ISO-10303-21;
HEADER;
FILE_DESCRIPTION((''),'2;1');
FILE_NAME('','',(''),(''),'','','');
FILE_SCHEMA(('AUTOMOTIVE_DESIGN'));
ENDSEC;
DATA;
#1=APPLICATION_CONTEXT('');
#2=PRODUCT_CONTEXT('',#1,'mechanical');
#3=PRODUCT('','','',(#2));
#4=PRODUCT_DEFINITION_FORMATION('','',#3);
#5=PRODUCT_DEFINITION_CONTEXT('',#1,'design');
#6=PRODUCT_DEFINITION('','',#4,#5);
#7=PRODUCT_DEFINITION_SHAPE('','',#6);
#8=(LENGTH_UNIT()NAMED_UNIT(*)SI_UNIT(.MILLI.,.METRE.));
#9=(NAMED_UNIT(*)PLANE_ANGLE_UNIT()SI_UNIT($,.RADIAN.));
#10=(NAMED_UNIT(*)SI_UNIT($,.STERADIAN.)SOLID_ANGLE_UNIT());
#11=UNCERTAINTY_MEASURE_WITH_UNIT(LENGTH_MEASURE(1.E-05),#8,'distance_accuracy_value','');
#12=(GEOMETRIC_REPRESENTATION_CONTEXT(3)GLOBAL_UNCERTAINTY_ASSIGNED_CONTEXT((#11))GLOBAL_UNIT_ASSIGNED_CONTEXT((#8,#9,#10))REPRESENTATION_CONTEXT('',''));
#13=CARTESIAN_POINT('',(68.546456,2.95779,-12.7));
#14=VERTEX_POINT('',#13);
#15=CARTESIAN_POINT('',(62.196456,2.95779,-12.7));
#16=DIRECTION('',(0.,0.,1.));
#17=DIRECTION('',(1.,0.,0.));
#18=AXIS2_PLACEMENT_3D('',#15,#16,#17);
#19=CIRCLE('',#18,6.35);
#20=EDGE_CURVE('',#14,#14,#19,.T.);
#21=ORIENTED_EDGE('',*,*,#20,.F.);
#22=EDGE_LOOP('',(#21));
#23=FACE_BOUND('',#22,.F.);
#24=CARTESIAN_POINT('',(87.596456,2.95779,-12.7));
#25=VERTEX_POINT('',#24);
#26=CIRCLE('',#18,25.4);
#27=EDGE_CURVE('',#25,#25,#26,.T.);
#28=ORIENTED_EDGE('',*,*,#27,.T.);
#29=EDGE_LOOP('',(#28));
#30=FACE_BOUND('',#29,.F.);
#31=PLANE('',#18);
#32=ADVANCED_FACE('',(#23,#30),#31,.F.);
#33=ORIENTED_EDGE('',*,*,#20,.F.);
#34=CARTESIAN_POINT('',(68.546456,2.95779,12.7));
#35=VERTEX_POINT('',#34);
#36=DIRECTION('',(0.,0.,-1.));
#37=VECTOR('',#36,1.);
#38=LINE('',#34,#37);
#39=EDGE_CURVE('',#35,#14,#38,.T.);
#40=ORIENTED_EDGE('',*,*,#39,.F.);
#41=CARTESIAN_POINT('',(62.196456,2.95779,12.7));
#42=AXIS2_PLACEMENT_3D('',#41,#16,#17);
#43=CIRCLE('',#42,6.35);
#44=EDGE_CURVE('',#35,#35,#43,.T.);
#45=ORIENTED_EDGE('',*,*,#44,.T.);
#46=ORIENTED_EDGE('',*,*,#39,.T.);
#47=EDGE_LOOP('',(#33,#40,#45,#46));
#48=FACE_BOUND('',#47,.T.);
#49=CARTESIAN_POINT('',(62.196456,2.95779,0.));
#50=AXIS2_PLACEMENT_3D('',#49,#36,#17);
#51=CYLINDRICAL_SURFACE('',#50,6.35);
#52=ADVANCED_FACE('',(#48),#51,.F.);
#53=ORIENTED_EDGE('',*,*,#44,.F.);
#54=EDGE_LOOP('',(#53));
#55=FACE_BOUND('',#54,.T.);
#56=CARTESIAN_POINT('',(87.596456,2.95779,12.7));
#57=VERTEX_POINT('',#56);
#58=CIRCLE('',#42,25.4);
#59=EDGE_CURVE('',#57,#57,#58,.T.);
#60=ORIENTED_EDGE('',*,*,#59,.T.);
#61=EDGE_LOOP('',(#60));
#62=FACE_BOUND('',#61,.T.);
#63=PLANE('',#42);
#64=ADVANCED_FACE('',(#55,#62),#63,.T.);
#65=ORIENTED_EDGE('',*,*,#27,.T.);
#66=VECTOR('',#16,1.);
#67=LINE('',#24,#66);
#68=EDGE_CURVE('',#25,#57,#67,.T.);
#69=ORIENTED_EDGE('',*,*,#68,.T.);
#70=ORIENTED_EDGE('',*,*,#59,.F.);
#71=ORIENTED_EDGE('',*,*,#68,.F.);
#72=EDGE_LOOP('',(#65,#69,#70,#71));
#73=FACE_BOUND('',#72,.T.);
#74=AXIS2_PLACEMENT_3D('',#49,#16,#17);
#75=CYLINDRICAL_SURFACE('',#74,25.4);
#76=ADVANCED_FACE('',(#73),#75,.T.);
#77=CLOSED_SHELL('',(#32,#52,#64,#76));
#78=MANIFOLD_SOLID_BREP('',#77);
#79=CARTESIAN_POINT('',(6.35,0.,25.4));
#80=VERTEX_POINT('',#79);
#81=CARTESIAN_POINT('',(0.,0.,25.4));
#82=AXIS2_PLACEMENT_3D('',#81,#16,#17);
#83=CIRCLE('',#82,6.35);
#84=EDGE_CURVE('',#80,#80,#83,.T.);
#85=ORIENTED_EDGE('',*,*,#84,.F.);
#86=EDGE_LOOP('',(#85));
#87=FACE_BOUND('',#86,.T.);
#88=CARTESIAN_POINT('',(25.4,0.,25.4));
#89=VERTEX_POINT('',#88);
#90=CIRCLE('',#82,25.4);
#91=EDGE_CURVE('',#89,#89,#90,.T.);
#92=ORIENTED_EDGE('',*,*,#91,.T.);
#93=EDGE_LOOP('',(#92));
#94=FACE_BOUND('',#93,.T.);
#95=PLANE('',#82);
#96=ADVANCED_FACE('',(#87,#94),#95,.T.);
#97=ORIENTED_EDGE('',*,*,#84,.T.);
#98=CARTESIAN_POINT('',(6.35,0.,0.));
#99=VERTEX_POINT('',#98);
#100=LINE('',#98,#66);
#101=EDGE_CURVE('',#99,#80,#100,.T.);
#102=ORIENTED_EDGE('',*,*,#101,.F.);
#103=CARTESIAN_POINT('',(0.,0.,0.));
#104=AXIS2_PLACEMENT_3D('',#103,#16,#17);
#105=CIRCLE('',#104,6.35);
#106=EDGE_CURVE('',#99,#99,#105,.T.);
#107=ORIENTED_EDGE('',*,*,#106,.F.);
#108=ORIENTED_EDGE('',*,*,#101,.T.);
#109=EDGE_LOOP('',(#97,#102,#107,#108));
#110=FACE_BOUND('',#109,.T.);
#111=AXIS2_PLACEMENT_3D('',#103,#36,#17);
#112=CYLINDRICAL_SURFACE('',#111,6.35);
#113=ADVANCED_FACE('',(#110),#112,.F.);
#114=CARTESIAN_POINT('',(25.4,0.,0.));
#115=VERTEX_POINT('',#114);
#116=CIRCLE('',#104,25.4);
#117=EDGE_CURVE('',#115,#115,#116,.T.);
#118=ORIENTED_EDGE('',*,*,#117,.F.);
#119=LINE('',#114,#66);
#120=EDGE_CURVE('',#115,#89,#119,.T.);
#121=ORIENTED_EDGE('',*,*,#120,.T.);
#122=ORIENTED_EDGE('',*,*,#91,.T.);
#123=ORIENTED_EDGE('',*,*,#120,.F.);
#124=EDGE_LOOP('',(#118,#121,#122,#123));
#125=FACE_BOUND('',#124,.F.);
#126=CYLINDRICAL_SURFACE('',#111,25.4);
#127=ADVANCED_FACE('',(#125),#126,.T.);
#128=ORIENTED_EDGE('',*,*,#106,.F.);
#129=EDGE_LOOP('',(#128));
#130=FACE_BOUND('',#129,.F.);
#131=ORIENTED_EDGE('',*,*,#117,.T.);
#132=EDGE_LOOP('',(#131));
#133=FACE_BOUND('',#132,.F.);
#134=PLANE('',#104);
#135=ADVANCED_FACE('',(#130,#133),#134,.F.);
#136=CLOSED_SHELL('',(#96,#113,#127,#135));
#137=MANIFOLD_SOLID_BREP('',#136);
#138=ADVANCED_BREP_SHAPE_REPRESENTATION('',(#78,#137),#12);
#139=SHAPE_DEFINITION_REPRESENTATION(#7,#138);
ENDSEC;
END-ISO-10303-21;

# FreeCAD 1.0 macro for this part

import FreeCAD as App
import Part
import Sketcher
Q = App.Units.Quantity

doc = App.newDocument("Part")
body = doc.addObject("PartDesign::Body", "Body")

# Sketch on XY plane
sketch1 = doc.addObject("Sketcher::SketchObject", "Sketch")
body.addObject(sketch1)
sketch1.AttachmentSupport = (doc.XY_Plane, [""])
sketch1.MapMode = "FlatFace"
sketch1.addGeometry(Part.Circle(App.Vector(0, 0, 0), App.Vector(0, 0, 1), 25.4), False)
sketch1.addGeometry(Part.Circle(App.Vector(0, 0, 0), App.Vector(0, 0, 1), 6.35), False)
sketch1.addConstraint(Sketcher.Constraint("Coincident", 0, 3, -1, 1))
sketch1.addConstraint(Sketcher.Constraint("Coincident", 1, 3, -1, 1))
sketch1.addConstraint(Sketcher.Constraint("Diameter", 0, Q("2 in")))
sketch1.addConstraint(Sketcher.Constraint("Diameter", 1, Q("0.5 in")))
pad1 = doc.addObject("PartDesign::Pad", "Pad")
body.addObject(pad1)
pad1.Profile = sketch1
pad1.Length = Q("1 in")
body2 = doc.addObject("PartDesign::Body", "Body001")

# Sketch on XY plane
sketch2 = doc.addObject("Sketcher::SketchObject", "Sketch001")
body2.addObject(sketch2)
sketch2.AttachmentSupport = (doc.getObject("XY_Plane001"), [""])
sketch2.MapMode = "FlatFace"
sketch2.addGeometry(Part.Circle(App.Vector(62.196456, 2.95779, 0), App.Vector(0, 0, 1), 25.4), False)
sketch2.addGeometry(Part.Circle(App.Vector(62.196456, 2.95779, 0), App.Vector(0, 0, 1), 6.35), False)
sketch2.addConstraint(Sketcher.Constraint("Coincident", 1, 3, 0, 3))
sketch2.addConstraint(Sketcher.Constraint("Diameter", 0, Q("2 in")))
sketch2.addConstraint(Sketcher.Constraint("Diameter", 1, Q("0.5 in")))
sketch2.addConstraint(Sketcher.Constraint("DistanceY", -1, 1, 0, 3, Q("2.95779 mm")))
sketch2.addConstraint(Sketcher.Constraint("DistanceX", -1, 1, 0, 3, Q("62.196456 mm")))
pad2 = doc.addObject("PartDesign::Pad", "Pad001")
body2.addObject(pad2)
pad2.Profile = sketch2
pad2.Length = Q("1 in")
pad2.Midplane = True

doc.recompute()
